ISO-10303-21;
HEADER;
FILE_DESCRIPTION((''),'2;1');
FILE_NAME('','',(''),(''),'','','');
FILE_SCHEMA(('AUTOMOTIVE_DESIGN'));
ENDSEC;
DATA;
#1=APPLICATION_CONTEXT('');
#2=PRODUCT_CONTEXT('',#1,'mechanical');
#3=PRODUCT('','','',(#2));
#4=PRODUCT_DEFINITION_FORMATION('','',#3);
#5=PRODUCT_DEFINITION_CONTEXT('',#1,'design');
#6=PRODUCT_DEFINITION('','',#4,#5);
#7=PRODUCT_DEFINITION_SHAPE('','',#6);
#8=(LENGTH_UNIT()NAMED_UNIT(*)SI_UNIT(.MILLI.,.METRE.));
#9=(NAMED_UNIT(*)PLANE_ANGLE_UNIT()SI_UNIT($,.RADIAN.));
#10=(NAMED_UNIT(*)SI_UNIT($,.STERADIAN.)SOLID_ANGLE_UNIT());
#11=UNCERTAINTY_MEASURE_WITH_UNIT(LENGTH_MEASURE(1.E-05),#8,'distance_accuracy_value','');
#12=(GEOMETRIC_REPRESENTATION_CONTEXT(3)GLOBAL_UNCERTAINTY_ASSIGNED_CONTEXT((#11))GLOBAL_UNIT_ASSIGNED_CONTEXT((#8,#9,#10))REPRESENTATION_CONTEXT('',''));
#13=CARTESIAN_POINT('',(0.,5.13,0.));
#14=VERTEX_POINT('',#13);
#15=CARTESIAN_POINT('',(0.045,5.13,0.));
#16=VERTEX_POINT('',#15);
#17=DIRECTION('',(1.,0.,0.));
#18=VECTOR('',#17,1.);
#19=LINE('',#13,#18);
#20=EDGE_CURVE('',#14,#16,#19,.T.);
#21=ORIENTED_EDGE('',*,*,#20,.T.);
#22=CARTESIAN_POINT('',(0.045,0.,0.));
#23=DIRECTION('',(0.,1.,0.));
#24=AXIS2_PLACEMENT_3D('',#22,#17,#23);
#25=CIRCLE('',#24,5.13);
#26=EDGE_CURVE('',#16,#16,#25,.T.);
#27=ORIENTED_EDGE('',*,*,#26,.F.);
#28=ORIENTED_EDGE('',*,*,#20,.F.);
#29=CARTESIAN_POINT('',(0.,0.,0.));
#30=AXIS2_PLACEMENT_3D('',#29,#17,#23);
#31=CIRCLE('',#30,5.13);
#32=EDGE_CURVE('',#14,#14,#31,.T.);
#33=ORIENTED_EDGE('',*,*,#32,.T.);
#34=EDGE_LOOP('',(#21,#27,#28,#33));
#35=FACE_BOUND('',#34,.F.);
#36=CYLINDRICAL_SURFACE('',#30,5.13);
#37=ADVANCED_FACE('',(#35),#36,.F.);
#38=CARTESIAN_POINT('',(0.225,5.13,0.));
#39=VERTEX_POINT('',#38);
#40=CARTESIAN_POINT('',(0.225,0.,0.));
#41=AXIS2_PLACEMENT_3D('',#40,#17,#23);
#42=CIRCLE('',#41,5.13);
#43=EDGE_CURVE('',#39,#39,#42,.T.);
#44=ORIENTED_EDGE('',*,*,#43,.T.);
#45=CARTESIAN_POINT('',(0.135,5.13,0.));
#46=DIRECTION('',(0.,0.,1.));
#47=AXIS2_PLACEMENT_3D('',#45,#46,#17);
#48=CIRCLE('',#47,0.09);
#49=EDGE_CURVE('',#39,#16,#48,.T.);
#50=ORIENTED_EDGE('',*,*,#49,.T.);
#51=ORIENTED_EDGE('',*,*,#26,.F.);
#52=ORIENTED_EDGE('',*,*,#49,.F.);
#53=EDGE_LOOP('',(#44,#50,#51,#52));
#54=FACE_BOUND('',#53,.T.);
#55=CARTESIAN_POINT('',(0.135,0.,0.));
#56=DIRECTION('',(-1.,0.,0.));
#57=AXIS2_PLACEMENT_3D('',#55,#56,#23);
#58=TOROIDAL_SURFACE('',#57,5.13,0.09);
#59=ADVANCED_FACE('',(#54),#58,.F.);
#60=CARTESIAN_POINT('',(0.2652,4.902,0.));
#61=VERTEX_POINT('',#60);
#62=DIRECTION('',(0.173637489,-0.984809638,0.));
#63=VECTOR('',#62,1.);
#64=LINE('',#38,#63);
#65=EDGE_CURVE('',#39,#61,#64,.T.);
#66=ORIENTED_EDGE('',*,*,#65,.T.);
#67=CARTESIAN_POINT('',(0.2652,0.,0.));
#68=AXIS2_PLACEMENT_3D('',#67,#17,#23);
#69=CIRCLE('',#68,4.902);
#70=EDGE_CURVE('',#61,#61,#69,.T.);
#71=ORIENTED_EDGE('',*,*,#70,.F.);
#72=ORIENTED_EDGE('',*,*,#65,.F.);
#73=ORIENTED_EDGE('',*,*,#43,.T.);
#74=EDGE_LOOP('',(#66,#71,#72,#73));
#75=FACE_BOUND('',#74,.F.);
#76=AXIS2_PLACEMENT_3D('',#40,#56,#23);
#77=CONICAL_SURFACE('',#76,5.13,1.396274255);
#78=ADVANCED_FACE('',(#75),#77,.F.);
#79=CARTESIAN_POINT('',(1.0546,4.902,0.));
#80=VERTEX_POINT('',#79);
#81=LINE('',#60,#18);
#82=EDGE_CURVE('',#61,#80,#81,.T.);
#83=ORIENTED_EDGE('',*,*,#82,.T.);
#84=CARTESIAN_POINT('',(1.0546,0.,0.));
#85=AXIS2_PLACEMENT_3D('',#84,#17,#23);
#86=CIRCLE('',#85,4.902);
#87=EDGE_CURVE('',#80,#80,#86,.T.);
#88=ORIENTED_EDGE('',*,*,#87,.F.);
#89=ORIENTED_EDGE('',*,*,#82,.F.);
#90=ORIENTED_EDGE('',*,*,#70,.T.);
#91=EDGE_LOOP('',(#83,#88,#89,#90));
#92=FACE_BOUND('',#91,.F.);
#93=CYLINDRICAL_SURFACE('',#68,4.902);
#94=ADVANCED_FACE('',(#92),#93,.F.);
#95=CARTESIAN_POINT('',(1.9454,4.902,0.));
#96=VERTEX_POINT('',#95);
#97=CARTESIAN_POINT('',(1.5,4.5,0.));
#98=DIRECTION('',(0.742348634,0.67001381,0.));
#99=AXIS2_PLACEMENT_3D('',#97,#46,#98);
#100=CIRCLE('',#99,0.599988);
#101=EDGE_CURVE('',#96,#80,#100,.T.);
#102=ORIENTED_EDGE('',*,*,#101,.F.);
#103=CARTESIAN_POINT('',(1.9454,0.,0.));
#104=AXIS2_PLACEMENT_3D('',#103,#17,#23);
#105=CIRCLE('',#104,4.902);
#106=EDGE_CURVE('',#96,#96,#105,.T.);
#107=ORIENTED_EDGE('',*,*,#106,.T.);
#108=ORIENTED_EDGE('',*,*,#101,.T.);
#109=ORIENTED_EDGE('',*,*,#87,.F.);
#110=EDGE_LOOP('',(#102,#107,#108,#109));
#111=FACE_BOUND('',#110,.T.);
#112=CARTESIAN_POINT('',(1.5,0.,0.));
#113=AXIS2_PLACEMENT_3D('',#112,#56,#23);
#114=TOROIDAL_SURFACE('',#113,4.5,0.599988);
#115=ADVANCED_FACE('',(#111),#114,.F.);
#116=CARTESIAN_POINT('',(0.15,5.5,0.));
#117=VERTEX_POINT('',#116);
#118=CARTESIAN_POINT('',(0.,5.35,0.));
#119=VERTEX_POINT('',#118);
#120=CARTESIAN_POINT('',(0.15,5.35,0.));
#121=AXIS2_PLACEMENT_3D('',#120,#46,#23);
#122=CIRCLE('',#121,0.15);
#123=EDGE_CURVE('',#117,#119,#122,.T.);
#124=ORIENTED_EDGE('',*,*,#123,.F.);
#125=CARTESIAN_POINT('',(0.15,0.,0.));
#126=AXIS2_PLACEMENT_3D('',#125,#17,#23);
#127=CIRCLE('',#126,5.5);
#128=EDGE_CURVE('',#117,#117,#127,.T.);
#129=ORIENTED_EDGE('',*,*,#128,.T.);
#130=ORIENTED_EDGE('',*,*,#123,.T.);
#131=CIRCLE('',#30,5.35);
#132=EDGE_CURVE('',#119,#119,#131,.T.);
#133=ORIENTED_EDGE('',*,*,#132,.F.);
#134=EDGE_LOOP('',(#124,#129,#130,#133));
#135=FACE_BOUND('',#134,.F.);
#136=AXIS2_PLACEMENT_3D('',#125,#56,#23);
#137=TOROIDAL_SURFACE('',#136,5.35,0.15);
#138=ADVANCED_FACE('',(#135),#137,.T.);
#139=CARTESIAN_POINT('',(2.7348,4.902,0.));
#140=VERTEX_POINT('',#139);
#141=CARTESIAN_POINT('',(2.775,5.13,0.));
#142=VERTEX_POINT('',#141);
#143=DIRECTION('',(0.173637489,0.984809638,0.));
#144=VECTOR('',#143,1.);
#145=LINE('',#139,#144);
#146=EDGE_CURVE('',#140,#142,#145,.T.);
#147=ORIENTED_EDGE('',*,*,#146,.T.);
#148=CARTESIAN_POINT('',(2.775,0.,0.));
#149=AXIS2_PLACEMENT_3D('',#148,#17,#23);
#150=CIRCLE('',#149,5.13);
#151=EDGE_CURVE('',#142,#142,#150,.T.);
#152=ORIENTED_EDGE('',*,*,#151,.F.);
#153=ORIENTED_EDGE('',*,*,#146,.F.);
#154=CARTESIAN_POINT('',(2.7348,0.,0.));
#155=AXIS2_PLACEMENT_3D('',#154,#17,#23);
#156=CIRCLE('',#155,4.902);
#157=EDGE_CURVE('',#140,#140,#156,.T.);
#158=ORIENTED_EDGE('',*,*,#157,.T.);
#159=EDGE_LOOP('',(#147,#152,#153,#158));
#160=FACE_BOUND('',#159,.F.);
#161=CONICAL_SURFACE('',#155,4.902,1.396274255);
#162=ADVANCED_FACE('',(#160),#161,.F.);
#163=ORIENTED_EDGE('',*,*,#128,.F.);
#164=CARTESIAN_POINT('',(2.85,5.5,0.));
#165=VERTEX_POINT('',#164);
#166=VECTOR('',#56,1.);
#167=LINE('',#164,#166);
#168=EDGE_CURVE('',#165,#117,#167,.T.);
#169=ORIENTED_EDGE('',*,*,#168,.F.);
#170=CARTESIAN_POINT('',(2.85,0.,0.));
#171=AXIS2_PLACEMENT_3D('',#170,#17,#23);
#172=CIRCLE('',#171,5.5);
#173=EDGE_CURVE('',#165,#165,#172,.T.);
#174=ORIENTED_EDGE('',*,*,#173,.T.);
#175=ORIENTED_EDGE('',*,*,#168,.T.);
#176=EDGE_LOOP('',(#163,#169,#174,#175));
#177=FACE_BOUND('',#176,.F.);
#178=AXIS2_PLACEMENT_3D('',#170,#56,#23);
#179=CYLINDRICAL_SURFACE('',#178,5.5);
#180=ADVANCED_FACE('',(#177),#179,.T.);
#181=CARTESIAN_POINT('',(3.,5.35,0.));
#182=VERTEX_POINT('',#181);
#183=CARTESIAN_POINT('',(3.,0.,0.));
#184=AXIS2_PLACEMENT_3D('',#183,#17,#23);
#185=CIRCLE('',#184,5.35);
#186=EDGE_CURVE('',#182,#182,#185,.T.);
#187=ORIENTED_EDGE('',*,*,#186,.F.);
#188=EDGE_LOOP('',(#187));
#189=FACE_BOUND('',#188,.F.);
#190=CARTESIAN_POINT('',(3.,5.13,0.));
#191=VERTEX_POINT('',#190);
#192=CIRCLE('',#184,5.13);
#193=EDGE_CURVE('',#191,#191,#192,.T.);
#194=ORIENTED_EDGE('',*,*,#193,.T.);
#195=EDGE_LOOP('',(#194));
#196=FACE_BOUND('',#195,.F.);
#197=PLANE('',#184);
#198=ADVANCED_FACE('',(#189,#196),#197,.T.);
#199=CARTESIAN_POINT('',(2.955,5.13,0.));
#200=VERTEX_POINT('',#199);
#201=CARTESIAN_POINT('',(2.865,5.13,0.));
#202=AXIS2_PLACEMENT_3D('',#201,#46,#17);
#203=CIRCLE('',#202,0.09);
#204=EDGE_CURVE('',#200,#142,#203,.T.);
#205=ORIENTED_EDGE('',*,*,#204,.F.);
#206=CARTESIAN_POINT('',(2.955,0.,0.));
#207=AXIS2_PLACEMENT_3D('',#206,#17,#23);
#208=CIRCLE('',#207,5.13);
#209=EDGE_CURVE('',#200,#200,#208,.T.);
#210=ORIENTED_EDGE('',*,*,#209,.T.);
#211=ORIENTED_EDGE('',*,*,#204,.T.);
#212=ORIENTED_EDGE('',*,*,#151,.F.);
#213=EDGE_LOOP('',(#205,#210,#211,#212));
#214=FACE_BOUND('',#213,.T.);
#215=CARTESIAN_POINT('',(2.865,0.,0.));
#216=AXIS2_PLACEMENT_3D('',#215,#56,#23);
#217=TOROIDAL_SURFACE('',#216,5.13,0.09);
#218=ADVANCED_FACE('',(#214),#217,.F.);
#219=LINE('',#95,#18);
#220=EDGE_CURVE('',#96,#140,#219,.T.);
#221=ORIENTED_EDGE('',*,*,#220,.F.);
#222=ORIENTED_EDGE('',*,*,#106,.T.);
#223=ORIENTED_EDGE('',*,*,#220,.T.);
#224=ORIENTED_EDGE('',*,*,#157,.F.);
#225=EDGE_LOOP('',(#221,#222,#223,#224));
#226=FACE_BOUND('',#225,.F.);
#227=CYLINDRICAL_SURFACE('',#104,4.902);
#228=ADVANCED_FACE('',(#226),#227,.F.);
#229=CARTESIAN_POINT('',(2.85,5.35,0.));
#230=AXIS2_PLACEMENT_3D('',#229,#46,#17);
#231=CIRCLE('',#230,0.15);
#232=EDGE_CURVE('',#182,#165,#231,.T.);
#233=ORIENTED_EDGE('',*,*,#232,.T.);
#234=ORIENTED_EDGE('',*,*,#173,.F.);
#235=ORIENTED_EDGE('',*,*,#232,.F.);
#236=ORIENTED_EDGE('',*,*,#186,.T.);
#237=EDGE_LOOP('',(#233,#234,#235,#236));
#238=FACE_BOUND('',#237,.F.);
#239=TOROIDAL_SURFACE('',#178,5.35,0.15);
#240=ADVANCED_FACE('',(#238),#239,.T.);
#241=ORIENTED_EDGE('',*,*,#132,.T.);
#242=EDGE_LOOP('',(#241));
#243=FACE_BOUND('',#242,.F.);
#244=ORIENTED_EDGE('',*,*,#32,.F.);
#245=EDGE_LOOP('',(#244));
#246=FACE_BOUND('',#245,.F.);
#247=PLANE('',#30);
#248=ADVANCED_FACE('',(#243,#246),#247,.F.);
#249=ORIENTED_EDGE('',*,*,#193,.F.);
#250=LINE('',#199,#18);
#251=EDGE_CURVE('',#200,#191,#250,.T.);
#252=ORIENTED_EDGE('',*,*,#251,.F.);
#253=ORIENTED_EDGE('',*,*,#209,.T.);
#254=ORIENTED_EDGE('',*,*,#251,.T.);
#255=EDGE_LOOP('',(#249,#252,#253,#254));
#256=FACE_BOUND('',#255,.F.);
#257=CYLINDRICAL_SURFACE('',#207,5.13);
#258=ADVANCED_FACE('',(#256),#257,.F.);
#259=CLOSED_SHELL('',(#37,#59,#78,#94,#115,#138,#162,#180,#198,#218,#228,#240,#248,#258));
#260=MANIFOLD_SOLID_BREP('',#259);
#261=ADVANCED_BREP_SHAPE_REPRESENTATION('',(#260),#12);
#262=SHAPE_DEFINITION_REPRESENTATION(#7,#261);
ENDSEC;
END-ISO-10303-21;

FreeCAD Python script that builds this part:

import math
import FreeCAD as App
import Part
import Sketcher
from FreeCAD import Vector
Q = App.Units.Quantity

doc = App.newDocument("Part")
body = doc.addObject("PartDesign::Body", "Body")

sketch1 = body.newObject("Sketcher::SketchObject", "Sketch")
sketch1.AttachmentSupport = (doc.getObject("XY_Plane"), [""])
sketch1.MapMode = "FlatFace"
sketch1.addGeometry([
    Part.ArcOfCircle(Part.Circle(Vector(0.15, 5.35, 0), Vector(0, 0, 1), 0.15), math.radians(90), math.radians(180)),
    Part.LineSegment(Vector(0, 5.35, 0), Vector(0, 5.13, 0)),
    Part.LineSegment(Vector(0, 5.13, 0), Vector(0.045, 5.13, 0)),
    Part.ArcOfCircle(Part.Circle(Vector(0.135, 5.13, 0), Vector(0, 0, 1), 0.09), math.radians(0), math.radians(180)),
    Part.LineSegment(Vector(0.225, 5.13, 0), Vector(0.265, 4.902, 0)),
    Part.LineSegment(Vector(0.265, 4.902, 0), Vector(1.055, 4.902, 0)),
    Part.ArcOfCircle(Part.Circle(Vector(1.5, 4.5, 0), Vector(0, 0, 1), 0.6), math.radians(42), math.radians(138)),
    Part.LineSegment(Vector(1.945, 4.902, 0), Vector(2.735, 4.902, 0)),
    Part.LineSegment(Vector(2.735, 4.902, 0), Vector(2.775, 5.13, 0)),
    Part.ArcOfCircle(Part.Circle(Vector(2.865, 5.13, 0), Vector(0, 0, 1), 0.09), math.radians(0), math.radians(180)),
    Part.LineSegment(Vector(2.955, 5.13, 0), Vector(3, 5.13, 0)),
    Part.LineSegment(Vector(3, 5.13, 0), Vector(3, 5.35, 0)),
    Part.ArcOfCircle(Part.Circle(Vector(2.85, 5.35, 0), Vector(0, 0, 1), 0.15), math.radians(0), math.radians(90)),
    Part.LineSegment(Vector(2.85, 5.5, 0), Vector(0.15, 5.5, 0)),
], False)
sketch1.addConstraint([
    Sketcher.Constraint("Tangent", 0, 2, 1, 1),
    Sketcher.Constraint("Coincident", 1, 2, 2, 1),
    Sketcher.Constraint("Coincident", 2, 2, 3, 2),
    Sketcher.Constraint("Coincident", 3, 1, 4, 1),
    Sketcher.Constraint("Coincident", 4, 2, 5, 1),
    Sketcher.Constraint("Coincident", 5, 2, 6, 2),
    Sketcher.Constraint("Coincident", 6, 1, 7, 1),
    Sketcher.Constraint("Coincident", 7, 2, 8, 1),
    Sketcher.Constraint("Coincident", 8, 2, 9, 2),
    Sketcher.Constraint("Coincident", 9, 1, 10, 1),
    Sketcher.Constraint("Coincident", 10, 2, 11, 1),
    Sketcher.Constraint("Tangent", 11, 2, 12, 1),
    Sketcher.Constraint("Tangent", 12, 2, 13, 1),
    Sketcher.Constraint("Tangent", 13, 2, 0, 1),
    Sketcher.Constraint("Vertical", 1),
    Sketcher.Constraint("Horizontal", 2),
    Sketcher.Constraint("Horizontal", 5),
    Sketcher.Constraint("Horizontal", 7),
    Sketcher.Constraint("Horizontal", 10),
    Sketcher.Constraint("Vertical", 11),
    Sketcher.Constraint("Horizontal", 13),
    Sketcher.Constraint("Equal", 3, 9),
    Sketcher.Constraint("Equal", 0, 12),
    Sketcher.Constraint("PointOnObject", 0, 2, -2),
    Sketcher.Constraint("Horizontal", 3, 3, 9, 3),
    Sketcher.Constraint("Horizontal", 9, 3, 1, 2),
    Sketcher.Constraint("Horizontal", 2, 2, 3, 1),
    Sketcher.Constraint("Horizontal", 5, 2, 6, 1),
    Sketcher.Constraint("Horizontal", 3, 1, 8, 2),
    Sketcher.Constraint("Horizontal", 8, 2, 9, 1),
    Sketcher.Constraint("Equal", 5, 7),
    Sketcher.Constraint("Equal", 2, 10),
    Sketcher.Constraint("Equal", 4, 8),
    Sketcher.Constraint("Radius", 6, Q("0.6 mm")),
    Sketcher.Constraint("Angle", 4, Q("-80.0006 deg")),
    Sketcher.Constraint("Radius", 0, Q("0.15 mm")),
    Sketcher.Constraint("Radius", 3, Q("0.09 mm")),
    Sketcher.Constraint("DistanceX", 13, 2, 13, 1, Q("2.7 mm")),
    Sketcher.Constraint("DistanceY", 1, 2, 1, 1, Q("0.22 mm")),
    Sketcher.Constraint("DistanceY", -1, 1, 6, 3, Q("4.5 mm")),
    Sketcher.Constraint("DistanceY", -1, 1, 12, 2, Q("5.5 mm")),
    Sketcher.Constraint("DistanceX", 2, 1, 2, 2, Q("0.045 mm")),
    Sketcher.Constraint("DistanceX", 5, 1, 5, 2, Q("0.7894 mm")),
])
revolution = body.newObject("PartDesign::Revolution", "Revolution")
revolution.Profile = sketch1
revolution.ReferenceAxis = (sketch1, ["H_Axis"])
revolution.Angle = 360

doc.recompute()
